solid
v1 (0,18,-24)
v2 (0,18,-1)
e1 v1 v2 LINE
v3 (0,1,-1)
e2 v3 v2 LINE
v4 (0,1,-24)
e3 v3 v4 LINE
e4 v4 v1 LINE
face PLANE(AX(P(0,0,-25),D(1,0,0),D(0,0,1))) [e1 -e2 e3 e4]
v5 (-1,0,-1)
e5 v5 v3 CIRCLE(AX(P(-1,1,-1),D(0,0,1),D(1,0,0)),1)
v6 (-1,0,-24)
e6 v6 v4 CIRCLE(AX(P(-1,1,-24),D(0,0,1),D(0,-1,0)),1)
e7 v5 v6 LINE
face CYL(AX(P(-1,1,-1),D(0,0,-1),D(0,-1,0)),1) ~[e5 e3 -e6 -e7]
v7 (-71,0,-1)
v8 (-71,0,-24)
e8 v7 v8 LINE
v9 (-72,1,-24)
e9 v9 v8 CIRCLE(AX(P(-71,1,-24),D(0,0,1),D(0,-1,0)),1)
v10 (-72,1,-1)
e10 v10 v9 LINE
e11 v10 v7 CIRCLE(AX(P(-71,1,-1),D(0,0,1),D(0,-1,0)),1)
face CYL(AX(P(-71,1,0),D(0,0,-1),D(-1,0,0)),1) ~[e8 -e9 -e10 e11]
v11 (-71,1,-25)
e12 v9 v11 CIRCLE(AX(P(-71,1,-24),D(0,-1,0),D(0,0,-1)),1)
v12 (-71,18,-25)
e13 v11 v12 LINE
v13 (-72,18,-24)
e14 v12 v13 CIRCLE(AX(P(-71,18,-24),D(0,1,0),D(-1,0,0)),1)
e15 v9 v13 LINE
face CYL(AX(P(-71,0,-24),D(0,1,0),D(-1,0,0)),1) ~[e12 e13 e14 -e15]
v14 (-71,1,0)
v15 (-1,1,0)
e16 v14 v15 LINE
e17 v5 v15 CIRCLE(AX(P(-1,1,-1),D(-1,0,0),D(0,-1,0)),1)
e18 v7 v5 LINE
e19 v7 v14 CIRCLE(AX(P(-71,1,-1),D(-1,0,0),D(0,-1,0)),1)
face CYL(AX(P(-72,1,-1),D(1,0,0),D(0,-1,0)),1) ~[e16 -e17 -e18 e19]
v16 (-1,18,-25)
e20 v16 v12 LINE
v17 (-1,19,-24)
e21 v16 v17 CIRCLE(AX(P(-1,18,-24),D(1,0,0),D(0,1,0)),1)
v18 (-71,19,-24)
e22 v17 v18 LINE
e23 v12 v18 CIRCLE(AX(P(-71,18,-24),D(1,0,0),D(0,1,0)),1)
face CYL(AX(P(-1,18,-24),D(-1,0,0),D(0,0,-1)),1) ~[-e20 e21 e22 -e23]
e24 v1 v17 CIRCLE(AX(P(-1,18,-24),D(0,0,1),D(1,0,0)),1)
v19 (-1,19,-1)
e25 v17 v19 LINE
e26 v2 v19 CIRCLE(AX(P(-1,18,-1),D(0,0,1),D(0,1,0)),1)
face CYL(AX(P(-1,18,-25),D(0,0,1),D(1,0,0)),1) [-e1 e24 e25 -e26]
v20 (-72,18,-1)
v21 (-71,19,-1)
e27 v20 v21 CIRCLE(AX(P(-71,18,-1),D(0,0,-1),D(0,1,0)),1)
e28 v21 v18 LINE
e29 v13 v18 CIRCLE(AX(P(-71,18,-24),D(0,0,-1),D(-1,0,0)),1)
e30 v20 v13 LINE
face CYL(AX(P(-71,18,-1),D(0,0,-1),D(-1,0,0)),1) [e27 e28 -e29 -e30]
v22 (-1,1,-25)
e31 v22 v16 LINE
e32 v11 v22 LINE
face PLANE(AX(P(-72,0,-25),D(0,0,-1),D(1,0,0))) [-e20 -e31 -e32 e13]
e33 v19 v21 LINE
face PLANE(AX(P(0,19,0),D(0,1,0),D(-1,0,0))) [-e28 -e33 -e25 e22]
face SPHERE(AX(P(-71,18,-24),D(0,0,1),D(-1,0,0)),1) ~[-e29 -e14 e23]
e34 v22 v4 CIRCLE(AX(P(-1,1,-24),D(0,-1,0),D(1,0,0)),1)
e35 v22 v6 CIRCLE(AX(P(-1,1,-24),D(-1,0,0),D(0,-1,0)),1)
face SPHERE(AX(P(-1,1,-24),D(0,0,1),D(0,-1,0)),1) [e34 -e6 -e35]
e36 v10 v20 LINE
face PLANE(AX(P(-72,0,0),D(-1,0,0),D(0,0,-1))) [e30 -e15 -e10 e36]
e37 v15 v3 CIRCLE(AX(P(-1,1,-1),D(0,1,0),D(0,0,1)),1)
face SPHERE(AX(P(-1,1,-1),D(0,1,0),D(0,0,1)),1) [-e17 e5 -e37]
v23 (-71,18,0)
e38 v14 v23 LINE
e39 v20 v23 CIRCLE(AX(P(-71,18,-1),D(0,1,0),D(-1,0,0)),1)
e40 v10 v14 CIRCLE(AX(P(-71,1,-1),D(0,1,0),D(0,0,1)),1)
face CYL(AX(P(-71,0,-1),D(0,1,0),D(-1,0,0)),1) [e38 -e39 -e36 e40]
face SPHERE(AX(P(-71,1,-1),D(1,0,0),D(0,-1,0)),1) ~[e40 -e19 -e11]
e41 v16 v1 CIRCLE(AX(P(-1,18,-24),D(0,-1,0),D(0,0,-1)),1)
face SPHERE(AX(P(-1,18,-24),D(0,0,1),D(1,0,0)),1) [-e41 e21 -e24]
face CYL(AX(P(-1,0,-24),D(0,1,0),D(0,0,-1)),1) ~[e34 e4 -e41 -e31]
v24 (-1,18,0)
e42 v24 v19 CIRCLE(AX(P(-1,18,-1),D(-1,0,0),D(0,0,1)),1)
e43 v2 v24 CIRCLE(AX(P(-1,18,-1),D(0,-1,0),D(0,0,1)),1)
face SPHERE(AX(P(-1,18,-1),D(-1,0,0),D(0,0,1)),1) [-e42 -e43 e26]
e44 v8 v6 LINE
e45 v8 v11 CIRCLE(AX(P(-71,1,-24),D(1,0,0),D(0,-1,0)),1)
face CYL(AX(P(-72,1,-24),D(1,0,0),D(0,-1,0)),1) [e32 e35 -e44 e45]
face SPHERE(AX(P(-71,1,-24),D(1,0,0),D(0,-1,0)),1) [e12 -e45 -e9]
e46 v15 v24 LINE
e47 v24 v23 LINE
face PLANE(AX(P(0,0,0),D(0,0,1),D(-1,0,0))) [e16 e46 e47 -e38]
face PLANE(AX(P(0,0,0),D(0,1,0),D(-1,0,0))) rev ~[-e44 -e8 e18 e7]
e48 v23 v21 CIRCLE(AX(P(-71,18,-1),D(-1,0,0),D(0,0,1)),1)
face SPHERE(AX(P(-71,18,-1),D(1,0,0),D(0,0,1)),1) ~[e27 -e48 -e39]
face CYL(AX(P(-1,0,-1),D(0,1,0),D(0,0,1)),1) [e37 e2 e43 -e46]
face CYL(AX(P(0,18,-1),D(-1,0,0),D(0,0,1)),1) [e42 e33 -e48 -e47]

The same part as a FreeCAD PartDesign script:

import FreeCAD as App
import Part
import Sketcher
from FreeCAD import Vector


def edges_at(feature, points):
    """Names of the edges that pass closest to the given points."""
    edges = feature.Shape.Edges
    near = lambda p: min(range(len(edges)), key=lambda i: edges[i].distToShape(Part.Vertex(*p))[0])
    return sorted({f"Edge{near(p) + 1}" for p in points})


def add_polygon(sketch, points):
    """Adds a closed chain of lines whose ends are joined by coincident constraints."""
    first, n = sketch.GeometryCount, len(points)
    for a, b in zip(points, points[1:] + points[:1]):
        sketch.addGeometry(Part.LineSegment(App.Vector(*a, 0), App.Vector(*b, 0)), False)
    for i in range(n):
        sketch.addConstraint(Sketcher.Constraint("Coincident", first + i, 2, first + (i + 1) % n, 1))

doc = App.newDocument("Part")
body = doc.addObject("PartDesign::Body", "Body")

sketch1 = body.newObject("Sketcher::SketchObject", "Sketch")
sketch1.AttachmentSupport = (doc.getObject("XZ_Plane"), [""])
sketch1.MapMode = "FlatFace"
add_polygon(sketch1, [(-72, 0), (0, 0), (0, -25), (-72, -25)])
sketch1.addConstraint([
    Sketcher.Constraint("Horizontal", 0),
    Sketcher.Constraint("Vertical", 1),
    Sketcher.Constraint("Horizontal", 2),
    Sketcher.Constraint("Vertical", 3),
    Sketcher.Constraint("Coincident", 0, 2, -1, 1),
    Sketcher.Constraint("DistanceX", 0, 1, 0, 2, 72.0),
    Sketcher.Constraint("DistanceY", 1, 2, 1, 1, 25.0),
])
pad1 = body.newObject("PartDesign::Pad", "Pad")
pad1.Profile = sketch1
pad1.Length = 19
pad1.Reversed = True
doc.recompute()

fillet = body.newObject("PartDesign::Fillet", "Fillet")
fillet.Base = (pad1, edges_at(pad1, [(-36, 19, 0), (0, 9.5, 0), (0, 19, -12.5)]))
fillet.Radius = 1
doc.recompute()

fillet2 = body.newObject("PartDesign::Fillet", "Fillet001")
fillet2.Base = (fillet, edges_at(fillet, [
    (-0.293, 0, -0.293),
    (0, 0, -13),
    (-36.5, 0, 0),
    (-36, 0, -25),
    (-72, 0, -12.5),
    (-72, 18.707, -0.293),
    (-72, 19, -13),
    (-72, 9, 0),
    (-72, 9.5, -25),
    (-0.293, 18.707, -25),
    (0, 9, -25),
    (-36.5, 19, -25),
]))
fillet2.Radius = 1

doc.recompute()
